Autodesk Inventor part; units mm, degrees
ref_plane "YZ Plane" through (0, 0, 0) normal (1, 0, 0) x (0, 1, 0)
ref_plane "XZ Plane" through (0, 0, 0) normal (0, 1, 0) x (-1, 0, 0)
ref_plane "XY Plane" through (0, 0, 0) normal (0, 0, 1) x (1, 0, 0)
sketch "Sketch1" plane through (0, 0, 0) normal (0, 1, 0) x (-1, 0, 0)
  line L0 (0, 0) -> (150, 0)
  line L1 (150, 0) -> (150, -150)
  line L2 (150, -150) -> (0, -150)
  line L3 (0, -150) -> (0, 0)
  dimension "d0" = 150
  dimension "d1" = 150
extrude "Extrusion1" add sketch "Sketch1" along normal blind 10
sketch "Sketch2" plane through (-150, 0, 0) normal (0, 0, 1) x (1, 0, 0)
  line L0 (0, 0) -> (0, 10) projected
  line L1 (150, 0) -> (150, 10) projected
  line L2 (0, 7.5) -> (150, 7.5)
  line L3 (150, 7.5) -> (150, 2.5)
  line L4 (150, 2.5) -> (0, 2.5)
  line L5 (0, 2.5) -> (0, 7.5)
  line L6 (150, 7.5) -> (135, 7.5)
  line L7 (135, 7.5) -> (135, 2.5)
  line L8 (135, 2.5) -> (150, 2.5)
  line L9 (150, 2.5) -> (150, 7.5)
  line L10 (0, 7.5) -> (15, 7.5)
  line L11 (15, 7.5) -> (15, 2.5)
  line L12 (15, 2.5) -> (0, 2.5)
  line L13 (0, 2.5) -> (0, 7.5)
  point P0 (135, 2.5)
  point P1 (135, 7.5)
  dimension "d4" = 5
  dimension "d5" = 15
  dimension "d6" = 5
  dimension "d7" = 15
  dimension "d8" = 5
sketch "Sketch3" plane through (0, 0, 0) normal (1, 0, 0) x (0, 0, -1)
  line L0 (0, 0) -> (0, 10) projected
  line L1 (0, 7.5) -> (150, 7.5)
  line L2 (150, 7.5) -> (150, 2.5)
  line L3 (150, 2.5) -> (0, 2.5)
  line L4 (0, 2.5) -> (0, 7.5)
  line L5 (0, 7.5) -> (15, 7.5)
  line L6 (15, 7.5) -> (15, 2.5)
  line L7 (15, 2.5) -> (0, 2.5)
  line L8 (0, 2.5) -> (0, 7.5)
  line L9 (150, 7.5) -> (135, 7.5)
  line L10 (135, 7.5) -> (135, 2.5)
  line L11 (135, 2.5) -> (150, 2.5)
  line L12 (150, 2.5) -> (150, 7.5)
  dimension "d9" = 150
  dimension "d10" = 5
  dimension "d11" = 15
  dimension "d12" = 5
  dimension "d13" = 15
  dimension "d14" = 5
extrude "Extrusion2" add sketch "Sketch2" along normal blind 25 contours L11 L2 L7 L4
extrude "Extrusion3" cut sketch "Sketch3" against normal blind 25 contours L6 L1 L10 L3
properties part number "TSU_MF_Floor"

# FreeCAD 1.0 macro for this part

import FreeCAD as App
import Part
import Sketcher
from FreeCAD import Vector
Q = App.Units.Quantity


def add_polygon(sketch, points):
    """Adds a closed chain of lines whose ends are joined by coincident constraints."""
    first, n = sketch.GeometryCount, len(points)
    for a, b in zip(points, points[1:] + points[:1]):
        sketch.addGeometry(Part.LineSegment(App.Vector(*a, 0), App.Vector(*b, 0)), False)
    for i in range(n):
        sketch.addConstraint(Sketcher.Constraint("Coincident", first + i, 2, first + (i + 1) % n, 1))

doc = App.newDocument("Part")
params = doc.addObject("Spreadsheet::Sheet", "Params")
for row, (alias, value) in enumerate([
    ("sketch1_width", "150 mm"),
    ("pad1_length", "10 mm"),
    ("sketch2_height", "5 mm"),
    ("sketch2_width", "120 mm"),
    ("pad2_length", "25 mm"),
    ("sketch3_width", "5 mm"),
    ("sketch3_height", "120 mm"),
    ("pocket1_length", "25 mm"),
], start=1):
    params.set(f"A{row}", alias)
    params.set(f"B{row}", "=" + value)
    params.setAlias(f"B{row}", alias)

body = doc.addObject("PartDesign::Body", "Body")

sketch1 = body.newObject("Sketcher::SketchObject", "Sketch")
sketch1.AttachmentSupport = (doc.getObject("XZ_Plane"), [""])
sketch1.MapMode = "FlatFace"
add_polygon(sketch1, [(-150, 0), (0, 0), (0, -150), (-150, -150)])
sketch1.addConstraint(Sketcher.Constraint("Horizontal", 0))
sketch1.addConstraint(Sketcher.Constraint("Vertical", 1))
sketch1.addConstraint(Sketcher.Constraint("Horizontal", 2))
sketch1.addConstraint(Sketcher.Constraint("Vertical", 3))
sketch1.addConstraint(Sketcher.Constraint("Coincident", 0, 2, -1, 1))
sketch1.addConstraint(Sketcher.Constraint("Equal", 2, 1))
sketch1.addConstraint(Sketcher.Constraint("DistanceX", 0, 1, 0, 2, Q("150 mm")))
sketch1.setExpression("Constraints[10]", "Params.sketch1_width")
pad1 = body.newObject("PartDesign::Pad", "Pad")
pad1.Profile = sketch1
pad1.setExpression("Length", "Params.pad1_length")
pad1.Reversed = True

sketch2 = body.newObject("Sketcher::SketchObject", "Sketch001")
sketch2.AttachmentSupport = (doc.getObject("XY_Plane"), [""])
sketch2.MapMode = "FlatFace"
add_polygon(sketch2, [(-135, 8), (-135, 2), (-15, 2), (-15, 8)])
sketch2.addConstraint(Sketcher.Constraint("Vertical", 0))
sketch2.addConstraint(Sketcher.Constraint("Horizontal", 1))
sketch2.addConstraint(Sketcher.Constraint("Vertical", 2))
sketch2.addConstraint(Sketcher.Constraint("Horizontal", 3))
sketch2.addConstraint(Sketcher.Constraint("DistanceY", 0, 2, 0, 1, Q("5 mm")))
sketch2.addConstraint(Sketcher.Constraint("DistanceX", 1, 2, -1, 1, Q("15 mm")))
sketch2.addConstraint(Sketcher.Constraint("DistanceX", 1, 1, 1, 2, Q("120 mm")))
sketch2.addConstraint(Sketcher.Constraint("DistanceY", -1, 1, 0, 2, Q("2.5 mm")))
sketch2.setExpression("Constraints[8]", "Params.sketch2_height")
sketch2.setExpression("Constraints[10]", "Params.sketch2_width")
pad2 = body.newObject("PartDesign::Pad", "Pad001")
pad2.Profile = sketch2
pad2.setExpression("Length", "Params.pad2_length")

sketch3 = body.newObject("Sketcher::SketchObject", "Sketch002")
sketch3.AttachmentSupport = (doc.getObject("YZ_Plane"), [""])
sketch3.MapMode = "FlatFace"
add_polygon(sketch3, [(8, -15), (2, -15), (2, -135), (8, -135)])
sketch3.addConstraint(Sketcher.Constraint("Horizontal", 0))
sketch3.addConstraint(Sketcher.Constraint("Vertical", 1))
sketch3.addConstraint(Sketcher.Constraint("Horizontal", 2))
sketch3.addConstraint(Sketcher.Constraint("Vertical", 3))
sketch3.addConstraint(Sketcher.Constraint("DistanceX", 0, 2, 0, 1, Q("5 mm")))
sketch3.addConstraint(Sketcher.Constraint("DistanceY", 0, 2, -1, 1, Q("15 mm")))
sketch3.addConstraint(Sketcher.Constraint("DistanceY", 1, 2, 1, 1, Q("120 mm")))
sketch3.addConstraint(Sketcher.Constraint("DistanceX", -1, 1, 0, 2, Q("2.5 mm")))
sketch3.setExpression("Constraints[8]", "Params.sketch3_width")
sketch3.setExpression("Constraints[10]", "Params.sketch3_height")
pocket1 = body.newObject("PartDesign::Pocket", "Pocket")
pocket1.Profile = sketch3
pocket1.setExpression("Length", "Params.pocket1_length")

doc.recompute()
